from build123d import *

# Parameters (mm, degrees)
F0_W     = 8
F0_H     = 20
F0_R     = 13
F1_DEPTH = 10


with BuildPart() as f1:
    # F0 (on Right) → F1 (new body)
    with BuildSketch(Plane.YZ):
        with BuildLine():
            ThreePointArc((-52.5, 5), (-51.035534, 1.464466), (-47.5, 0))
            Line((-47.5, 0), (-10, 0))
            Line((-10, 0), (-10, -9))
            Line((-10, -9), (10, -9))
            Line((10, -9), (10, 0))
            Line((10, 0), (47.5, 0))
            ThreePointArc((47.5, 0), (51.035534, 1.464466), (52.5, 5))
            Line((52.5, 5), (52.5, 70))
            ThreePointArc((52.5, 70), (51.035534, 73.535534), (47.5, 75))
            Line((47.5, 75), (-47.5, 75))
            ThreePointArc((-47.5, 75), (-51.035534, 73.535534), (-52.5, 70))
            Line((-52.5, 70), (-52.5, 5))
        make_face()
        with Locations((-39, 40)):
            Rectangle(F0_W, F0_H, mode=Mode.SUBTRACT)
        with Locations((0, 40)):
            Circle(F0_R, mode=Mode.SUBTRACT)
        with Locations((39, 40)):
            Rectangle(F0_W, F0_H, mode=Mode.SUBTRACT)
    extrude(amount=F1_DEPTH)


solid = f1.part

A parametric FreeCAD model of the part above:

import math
import FreeCAD as App
import Part
import Sketcher
Q = App.Units.Quantity


def add_polygon(sketch, points):
    """Adds a closed chain of lines whose ends are joined by coincident constraints."""
    first, n = sketch.GeometryCount, len(points)
    for a, b in zip(points, points[1:] + points[:1]):
        sketch.addGeometry(Part.LineSegment(App.Vector(*a, 0), App.Vector(*b, 0)), False)
    for i in range(n):
        sketch.addConstraint(Sketcher.Constraint("Coincident", first + i, 2, first + (i + 1) % n, 1))

doc = App.newDocument("Part")
body = doc.addObject("PartDesign::Body", "Body")

# Sketch on YZ plane
sketch1 = doc.addObject("Sketcher::SketchObject", "Sketch")
body.addObject(sketch1)
sketch1.AttachmentSupport = (doc.YZ_Plane, [""])
sketch1.MapMode = "FlatFace"
sketch1.addGeometry(Part.ArcOfCircle(Part.Circle(App.Vector(-47.5, 5, 0), App.Vector(0, 0, 1), 5), math.radians(180), math.radians(270)), False)  # 0
sketch1.addGeometry(Part.LineSegment(App.Vector(-47.5, 0, 0), App.Vector(-10, 0, 0)), False)  # 1
sketch1.addGeometry(Part.LineSegment(App.Vector(-10, 0, 0), App.Vector(-10, -9, 0)), False)  # 2
sketch1.addGeometry(Part.LineSegment(App.Vector(-10, -9, 0), App.Vector(10, -9, 0)), False)  # 3
sketch1.addGeometry(Part.LineSegment(App.Vector(10, -9, 0), App.Vector(10, 0, 0)), False)  # 4
sketch1.addGeometry(Part.LineSegment(App.Vector(10, 0, 0), App.Vector(47.5, 0, 0)), False)  # 5
sketch1.addGeometry(Part.ArcOfCircle(Part.Circle(App.Vector(47.5, 5, 0), App.Vector(0, 0, 1), 5), math.radians(-90), math.radians(0)), False)  # 6
sketch1.addGeometry(Part.LineSegment(App.Vector(52.5, 5, 0), App.Vector(52.5, 70, 0)), False)  # 7
sketch1.addGeometry(Part.ArcOfCircle(Part.Circle(App.Vector(47.5, 70, 0), App.Vector(0, 0, 1), 5), math.radians(0), math.radians(90)), False)  # 8
sketch1.addGeometry(Part.LineSegment(App.Vector(47.5, 75, 0), App.Vector(-47.5, 75, 0)), False)  # 9
sketch1.addGeometry(Part.ArcOfCircle(Part.Circle(App.Vector(-47.5, 70, 0), App.Vector(0, 0, 1), 5), math.radians(90), math.radians(180)), False)  # 10
sketch1.addGeometry(Part.LineSegment(App.Vector(-52.5, 70, 0), App.Vector(-52.5, 5, 0)), False)  # 11
add_polygon(sketch1, [(-35, 30), (-43, 30), (-43, 50), (-35, 50)])  # lines 12-15
sketch1.addGeometry(Part.Circle(App.Vector(0, 40, 0), App.Vector(0, 0, 1), 13), False)  # 16
add_polygon(sketch1, [(43, 30), (35, 30), (35, 50), (43, 50)])  # lines 17-20
sketch1.addConstraint([
    Sketcher.Constraint("Tangent", 0, 2, 1, 1),
    Sketcher.Constraint("Coincident", 1, 2, 2, 1),
    Sketcher.Constraint("Coincident", 2, 2, 3, 1),
    Sketcher.Constraint("Coincident", 3, 2, 4, 1),
    Sketcher.Constraint("Coincident", 4, 2, 5, 1),
    Sketcher.Constraint("Tangent", 5, 2, 6, 1),
    Sketcher.Constraint("Tangent", 6, 2, 7, 1),
    Sketcher.Constraint("Tangent", 7, 2, 8, 1),
    Sketcher.Constraint("Tangent", 8, 2, 9, 1),
    Sketcher.Constraint("Tangent", 9, 2, 10, 1),
    Sketcher.Constraint("Tangent", 10, 2, 11, 1),
    Sketcher.Constraint("Tangent", 11, 2, 0, 1),
    Sketcher.Constraint("Horizontal", 1),
    Sketcher.Constraint("Vertical", 2),
    Sketcher.Constraint("Horizontal", 3),
    Sketcher.Constraint("Vertical", 4),
    Sketcher.Constraint("Horizontal", 5),
    Sketcher.Constraint("Vertical", 7),
    Sketcher.Constraint("Horizontal", 9),
    Sketcher.Constraint("Vertical", 11),
    Sketcher.Constraint("Horizontal", 12),
    Sketcher.Constraint("Vertical", 13),
    Sketcher.Constraint("Horizontal", 14),
    Sketcher.Constraint("Vertical", 15),
    Sketcher.Constraint("Horizontal", 17),
    Sketcher.Constraint("Vertical", 18),
    Sketcher.Constraint("Horizontal", 19),
    Sketcher.Constraint("Vertical", 20),
    Sketcher.Constraint("Equal", 0, 6),
    Sketcher.Constraint("Equal", 6, 8),
    Sketcher.Constraint("Equal", 8, 10),
    Sketcher.Constraint("Symmetric", 1, 2, 4, 2, -1, 1),
    Sketcher.Constraint("Symmetric", 0, 3, 6, 3, -2),
    Sketcher.Constraint("Symmetric", 15, 2, 17, 2, -2),
    Sketcher.Constraint("Symmetric", 13, 2, 19, 2, -2),
    Sketcher.Constraint("PointOnObject", 16, 3, -2),
    Sketcher.Constraint("Equal", 3, 13),
    Sketcher.Constraint("Diameter", 16, Q("26 mm")),
    Sketcher.Constraint("Radius", 0, Q("5 mm")),
    Sketcher.Constraint("DistanceX", 3, 1, 3, 2, Q("20 mm")),
    Sketcher.Constraint("DistanceX", 9, 2, 9, 1, Q("95 mm")),
    Sketcher.Constraint("DistanceX", 12, 2, 12, 1, Q("8 mm")),
    Sketcher.Constraint("DistanceY", 2, 2, 2, 1, Q("9 mm")),
    Sketcher.Constraint("DistanceY", 7, 1, 7, 2, Q("65 mm")),
    Sketcher.Constraint("DistanceY", -1, 1, 16, 3, Q("40 mm")),
    Sketcher.Constraint("DistanceX", 12, 2, -1, 1, Q("43 mm")),
    Sketcher.Constraint("DistanceY", -1, 1, 12, 2, Q("30 mm")),
])
pad1 = doc.addObject("PartDesign::Pad", "Pad")
body.addObject(pad1)
pad1.Profile = sketch1
pad1.Length = 10

doc.recompute()
